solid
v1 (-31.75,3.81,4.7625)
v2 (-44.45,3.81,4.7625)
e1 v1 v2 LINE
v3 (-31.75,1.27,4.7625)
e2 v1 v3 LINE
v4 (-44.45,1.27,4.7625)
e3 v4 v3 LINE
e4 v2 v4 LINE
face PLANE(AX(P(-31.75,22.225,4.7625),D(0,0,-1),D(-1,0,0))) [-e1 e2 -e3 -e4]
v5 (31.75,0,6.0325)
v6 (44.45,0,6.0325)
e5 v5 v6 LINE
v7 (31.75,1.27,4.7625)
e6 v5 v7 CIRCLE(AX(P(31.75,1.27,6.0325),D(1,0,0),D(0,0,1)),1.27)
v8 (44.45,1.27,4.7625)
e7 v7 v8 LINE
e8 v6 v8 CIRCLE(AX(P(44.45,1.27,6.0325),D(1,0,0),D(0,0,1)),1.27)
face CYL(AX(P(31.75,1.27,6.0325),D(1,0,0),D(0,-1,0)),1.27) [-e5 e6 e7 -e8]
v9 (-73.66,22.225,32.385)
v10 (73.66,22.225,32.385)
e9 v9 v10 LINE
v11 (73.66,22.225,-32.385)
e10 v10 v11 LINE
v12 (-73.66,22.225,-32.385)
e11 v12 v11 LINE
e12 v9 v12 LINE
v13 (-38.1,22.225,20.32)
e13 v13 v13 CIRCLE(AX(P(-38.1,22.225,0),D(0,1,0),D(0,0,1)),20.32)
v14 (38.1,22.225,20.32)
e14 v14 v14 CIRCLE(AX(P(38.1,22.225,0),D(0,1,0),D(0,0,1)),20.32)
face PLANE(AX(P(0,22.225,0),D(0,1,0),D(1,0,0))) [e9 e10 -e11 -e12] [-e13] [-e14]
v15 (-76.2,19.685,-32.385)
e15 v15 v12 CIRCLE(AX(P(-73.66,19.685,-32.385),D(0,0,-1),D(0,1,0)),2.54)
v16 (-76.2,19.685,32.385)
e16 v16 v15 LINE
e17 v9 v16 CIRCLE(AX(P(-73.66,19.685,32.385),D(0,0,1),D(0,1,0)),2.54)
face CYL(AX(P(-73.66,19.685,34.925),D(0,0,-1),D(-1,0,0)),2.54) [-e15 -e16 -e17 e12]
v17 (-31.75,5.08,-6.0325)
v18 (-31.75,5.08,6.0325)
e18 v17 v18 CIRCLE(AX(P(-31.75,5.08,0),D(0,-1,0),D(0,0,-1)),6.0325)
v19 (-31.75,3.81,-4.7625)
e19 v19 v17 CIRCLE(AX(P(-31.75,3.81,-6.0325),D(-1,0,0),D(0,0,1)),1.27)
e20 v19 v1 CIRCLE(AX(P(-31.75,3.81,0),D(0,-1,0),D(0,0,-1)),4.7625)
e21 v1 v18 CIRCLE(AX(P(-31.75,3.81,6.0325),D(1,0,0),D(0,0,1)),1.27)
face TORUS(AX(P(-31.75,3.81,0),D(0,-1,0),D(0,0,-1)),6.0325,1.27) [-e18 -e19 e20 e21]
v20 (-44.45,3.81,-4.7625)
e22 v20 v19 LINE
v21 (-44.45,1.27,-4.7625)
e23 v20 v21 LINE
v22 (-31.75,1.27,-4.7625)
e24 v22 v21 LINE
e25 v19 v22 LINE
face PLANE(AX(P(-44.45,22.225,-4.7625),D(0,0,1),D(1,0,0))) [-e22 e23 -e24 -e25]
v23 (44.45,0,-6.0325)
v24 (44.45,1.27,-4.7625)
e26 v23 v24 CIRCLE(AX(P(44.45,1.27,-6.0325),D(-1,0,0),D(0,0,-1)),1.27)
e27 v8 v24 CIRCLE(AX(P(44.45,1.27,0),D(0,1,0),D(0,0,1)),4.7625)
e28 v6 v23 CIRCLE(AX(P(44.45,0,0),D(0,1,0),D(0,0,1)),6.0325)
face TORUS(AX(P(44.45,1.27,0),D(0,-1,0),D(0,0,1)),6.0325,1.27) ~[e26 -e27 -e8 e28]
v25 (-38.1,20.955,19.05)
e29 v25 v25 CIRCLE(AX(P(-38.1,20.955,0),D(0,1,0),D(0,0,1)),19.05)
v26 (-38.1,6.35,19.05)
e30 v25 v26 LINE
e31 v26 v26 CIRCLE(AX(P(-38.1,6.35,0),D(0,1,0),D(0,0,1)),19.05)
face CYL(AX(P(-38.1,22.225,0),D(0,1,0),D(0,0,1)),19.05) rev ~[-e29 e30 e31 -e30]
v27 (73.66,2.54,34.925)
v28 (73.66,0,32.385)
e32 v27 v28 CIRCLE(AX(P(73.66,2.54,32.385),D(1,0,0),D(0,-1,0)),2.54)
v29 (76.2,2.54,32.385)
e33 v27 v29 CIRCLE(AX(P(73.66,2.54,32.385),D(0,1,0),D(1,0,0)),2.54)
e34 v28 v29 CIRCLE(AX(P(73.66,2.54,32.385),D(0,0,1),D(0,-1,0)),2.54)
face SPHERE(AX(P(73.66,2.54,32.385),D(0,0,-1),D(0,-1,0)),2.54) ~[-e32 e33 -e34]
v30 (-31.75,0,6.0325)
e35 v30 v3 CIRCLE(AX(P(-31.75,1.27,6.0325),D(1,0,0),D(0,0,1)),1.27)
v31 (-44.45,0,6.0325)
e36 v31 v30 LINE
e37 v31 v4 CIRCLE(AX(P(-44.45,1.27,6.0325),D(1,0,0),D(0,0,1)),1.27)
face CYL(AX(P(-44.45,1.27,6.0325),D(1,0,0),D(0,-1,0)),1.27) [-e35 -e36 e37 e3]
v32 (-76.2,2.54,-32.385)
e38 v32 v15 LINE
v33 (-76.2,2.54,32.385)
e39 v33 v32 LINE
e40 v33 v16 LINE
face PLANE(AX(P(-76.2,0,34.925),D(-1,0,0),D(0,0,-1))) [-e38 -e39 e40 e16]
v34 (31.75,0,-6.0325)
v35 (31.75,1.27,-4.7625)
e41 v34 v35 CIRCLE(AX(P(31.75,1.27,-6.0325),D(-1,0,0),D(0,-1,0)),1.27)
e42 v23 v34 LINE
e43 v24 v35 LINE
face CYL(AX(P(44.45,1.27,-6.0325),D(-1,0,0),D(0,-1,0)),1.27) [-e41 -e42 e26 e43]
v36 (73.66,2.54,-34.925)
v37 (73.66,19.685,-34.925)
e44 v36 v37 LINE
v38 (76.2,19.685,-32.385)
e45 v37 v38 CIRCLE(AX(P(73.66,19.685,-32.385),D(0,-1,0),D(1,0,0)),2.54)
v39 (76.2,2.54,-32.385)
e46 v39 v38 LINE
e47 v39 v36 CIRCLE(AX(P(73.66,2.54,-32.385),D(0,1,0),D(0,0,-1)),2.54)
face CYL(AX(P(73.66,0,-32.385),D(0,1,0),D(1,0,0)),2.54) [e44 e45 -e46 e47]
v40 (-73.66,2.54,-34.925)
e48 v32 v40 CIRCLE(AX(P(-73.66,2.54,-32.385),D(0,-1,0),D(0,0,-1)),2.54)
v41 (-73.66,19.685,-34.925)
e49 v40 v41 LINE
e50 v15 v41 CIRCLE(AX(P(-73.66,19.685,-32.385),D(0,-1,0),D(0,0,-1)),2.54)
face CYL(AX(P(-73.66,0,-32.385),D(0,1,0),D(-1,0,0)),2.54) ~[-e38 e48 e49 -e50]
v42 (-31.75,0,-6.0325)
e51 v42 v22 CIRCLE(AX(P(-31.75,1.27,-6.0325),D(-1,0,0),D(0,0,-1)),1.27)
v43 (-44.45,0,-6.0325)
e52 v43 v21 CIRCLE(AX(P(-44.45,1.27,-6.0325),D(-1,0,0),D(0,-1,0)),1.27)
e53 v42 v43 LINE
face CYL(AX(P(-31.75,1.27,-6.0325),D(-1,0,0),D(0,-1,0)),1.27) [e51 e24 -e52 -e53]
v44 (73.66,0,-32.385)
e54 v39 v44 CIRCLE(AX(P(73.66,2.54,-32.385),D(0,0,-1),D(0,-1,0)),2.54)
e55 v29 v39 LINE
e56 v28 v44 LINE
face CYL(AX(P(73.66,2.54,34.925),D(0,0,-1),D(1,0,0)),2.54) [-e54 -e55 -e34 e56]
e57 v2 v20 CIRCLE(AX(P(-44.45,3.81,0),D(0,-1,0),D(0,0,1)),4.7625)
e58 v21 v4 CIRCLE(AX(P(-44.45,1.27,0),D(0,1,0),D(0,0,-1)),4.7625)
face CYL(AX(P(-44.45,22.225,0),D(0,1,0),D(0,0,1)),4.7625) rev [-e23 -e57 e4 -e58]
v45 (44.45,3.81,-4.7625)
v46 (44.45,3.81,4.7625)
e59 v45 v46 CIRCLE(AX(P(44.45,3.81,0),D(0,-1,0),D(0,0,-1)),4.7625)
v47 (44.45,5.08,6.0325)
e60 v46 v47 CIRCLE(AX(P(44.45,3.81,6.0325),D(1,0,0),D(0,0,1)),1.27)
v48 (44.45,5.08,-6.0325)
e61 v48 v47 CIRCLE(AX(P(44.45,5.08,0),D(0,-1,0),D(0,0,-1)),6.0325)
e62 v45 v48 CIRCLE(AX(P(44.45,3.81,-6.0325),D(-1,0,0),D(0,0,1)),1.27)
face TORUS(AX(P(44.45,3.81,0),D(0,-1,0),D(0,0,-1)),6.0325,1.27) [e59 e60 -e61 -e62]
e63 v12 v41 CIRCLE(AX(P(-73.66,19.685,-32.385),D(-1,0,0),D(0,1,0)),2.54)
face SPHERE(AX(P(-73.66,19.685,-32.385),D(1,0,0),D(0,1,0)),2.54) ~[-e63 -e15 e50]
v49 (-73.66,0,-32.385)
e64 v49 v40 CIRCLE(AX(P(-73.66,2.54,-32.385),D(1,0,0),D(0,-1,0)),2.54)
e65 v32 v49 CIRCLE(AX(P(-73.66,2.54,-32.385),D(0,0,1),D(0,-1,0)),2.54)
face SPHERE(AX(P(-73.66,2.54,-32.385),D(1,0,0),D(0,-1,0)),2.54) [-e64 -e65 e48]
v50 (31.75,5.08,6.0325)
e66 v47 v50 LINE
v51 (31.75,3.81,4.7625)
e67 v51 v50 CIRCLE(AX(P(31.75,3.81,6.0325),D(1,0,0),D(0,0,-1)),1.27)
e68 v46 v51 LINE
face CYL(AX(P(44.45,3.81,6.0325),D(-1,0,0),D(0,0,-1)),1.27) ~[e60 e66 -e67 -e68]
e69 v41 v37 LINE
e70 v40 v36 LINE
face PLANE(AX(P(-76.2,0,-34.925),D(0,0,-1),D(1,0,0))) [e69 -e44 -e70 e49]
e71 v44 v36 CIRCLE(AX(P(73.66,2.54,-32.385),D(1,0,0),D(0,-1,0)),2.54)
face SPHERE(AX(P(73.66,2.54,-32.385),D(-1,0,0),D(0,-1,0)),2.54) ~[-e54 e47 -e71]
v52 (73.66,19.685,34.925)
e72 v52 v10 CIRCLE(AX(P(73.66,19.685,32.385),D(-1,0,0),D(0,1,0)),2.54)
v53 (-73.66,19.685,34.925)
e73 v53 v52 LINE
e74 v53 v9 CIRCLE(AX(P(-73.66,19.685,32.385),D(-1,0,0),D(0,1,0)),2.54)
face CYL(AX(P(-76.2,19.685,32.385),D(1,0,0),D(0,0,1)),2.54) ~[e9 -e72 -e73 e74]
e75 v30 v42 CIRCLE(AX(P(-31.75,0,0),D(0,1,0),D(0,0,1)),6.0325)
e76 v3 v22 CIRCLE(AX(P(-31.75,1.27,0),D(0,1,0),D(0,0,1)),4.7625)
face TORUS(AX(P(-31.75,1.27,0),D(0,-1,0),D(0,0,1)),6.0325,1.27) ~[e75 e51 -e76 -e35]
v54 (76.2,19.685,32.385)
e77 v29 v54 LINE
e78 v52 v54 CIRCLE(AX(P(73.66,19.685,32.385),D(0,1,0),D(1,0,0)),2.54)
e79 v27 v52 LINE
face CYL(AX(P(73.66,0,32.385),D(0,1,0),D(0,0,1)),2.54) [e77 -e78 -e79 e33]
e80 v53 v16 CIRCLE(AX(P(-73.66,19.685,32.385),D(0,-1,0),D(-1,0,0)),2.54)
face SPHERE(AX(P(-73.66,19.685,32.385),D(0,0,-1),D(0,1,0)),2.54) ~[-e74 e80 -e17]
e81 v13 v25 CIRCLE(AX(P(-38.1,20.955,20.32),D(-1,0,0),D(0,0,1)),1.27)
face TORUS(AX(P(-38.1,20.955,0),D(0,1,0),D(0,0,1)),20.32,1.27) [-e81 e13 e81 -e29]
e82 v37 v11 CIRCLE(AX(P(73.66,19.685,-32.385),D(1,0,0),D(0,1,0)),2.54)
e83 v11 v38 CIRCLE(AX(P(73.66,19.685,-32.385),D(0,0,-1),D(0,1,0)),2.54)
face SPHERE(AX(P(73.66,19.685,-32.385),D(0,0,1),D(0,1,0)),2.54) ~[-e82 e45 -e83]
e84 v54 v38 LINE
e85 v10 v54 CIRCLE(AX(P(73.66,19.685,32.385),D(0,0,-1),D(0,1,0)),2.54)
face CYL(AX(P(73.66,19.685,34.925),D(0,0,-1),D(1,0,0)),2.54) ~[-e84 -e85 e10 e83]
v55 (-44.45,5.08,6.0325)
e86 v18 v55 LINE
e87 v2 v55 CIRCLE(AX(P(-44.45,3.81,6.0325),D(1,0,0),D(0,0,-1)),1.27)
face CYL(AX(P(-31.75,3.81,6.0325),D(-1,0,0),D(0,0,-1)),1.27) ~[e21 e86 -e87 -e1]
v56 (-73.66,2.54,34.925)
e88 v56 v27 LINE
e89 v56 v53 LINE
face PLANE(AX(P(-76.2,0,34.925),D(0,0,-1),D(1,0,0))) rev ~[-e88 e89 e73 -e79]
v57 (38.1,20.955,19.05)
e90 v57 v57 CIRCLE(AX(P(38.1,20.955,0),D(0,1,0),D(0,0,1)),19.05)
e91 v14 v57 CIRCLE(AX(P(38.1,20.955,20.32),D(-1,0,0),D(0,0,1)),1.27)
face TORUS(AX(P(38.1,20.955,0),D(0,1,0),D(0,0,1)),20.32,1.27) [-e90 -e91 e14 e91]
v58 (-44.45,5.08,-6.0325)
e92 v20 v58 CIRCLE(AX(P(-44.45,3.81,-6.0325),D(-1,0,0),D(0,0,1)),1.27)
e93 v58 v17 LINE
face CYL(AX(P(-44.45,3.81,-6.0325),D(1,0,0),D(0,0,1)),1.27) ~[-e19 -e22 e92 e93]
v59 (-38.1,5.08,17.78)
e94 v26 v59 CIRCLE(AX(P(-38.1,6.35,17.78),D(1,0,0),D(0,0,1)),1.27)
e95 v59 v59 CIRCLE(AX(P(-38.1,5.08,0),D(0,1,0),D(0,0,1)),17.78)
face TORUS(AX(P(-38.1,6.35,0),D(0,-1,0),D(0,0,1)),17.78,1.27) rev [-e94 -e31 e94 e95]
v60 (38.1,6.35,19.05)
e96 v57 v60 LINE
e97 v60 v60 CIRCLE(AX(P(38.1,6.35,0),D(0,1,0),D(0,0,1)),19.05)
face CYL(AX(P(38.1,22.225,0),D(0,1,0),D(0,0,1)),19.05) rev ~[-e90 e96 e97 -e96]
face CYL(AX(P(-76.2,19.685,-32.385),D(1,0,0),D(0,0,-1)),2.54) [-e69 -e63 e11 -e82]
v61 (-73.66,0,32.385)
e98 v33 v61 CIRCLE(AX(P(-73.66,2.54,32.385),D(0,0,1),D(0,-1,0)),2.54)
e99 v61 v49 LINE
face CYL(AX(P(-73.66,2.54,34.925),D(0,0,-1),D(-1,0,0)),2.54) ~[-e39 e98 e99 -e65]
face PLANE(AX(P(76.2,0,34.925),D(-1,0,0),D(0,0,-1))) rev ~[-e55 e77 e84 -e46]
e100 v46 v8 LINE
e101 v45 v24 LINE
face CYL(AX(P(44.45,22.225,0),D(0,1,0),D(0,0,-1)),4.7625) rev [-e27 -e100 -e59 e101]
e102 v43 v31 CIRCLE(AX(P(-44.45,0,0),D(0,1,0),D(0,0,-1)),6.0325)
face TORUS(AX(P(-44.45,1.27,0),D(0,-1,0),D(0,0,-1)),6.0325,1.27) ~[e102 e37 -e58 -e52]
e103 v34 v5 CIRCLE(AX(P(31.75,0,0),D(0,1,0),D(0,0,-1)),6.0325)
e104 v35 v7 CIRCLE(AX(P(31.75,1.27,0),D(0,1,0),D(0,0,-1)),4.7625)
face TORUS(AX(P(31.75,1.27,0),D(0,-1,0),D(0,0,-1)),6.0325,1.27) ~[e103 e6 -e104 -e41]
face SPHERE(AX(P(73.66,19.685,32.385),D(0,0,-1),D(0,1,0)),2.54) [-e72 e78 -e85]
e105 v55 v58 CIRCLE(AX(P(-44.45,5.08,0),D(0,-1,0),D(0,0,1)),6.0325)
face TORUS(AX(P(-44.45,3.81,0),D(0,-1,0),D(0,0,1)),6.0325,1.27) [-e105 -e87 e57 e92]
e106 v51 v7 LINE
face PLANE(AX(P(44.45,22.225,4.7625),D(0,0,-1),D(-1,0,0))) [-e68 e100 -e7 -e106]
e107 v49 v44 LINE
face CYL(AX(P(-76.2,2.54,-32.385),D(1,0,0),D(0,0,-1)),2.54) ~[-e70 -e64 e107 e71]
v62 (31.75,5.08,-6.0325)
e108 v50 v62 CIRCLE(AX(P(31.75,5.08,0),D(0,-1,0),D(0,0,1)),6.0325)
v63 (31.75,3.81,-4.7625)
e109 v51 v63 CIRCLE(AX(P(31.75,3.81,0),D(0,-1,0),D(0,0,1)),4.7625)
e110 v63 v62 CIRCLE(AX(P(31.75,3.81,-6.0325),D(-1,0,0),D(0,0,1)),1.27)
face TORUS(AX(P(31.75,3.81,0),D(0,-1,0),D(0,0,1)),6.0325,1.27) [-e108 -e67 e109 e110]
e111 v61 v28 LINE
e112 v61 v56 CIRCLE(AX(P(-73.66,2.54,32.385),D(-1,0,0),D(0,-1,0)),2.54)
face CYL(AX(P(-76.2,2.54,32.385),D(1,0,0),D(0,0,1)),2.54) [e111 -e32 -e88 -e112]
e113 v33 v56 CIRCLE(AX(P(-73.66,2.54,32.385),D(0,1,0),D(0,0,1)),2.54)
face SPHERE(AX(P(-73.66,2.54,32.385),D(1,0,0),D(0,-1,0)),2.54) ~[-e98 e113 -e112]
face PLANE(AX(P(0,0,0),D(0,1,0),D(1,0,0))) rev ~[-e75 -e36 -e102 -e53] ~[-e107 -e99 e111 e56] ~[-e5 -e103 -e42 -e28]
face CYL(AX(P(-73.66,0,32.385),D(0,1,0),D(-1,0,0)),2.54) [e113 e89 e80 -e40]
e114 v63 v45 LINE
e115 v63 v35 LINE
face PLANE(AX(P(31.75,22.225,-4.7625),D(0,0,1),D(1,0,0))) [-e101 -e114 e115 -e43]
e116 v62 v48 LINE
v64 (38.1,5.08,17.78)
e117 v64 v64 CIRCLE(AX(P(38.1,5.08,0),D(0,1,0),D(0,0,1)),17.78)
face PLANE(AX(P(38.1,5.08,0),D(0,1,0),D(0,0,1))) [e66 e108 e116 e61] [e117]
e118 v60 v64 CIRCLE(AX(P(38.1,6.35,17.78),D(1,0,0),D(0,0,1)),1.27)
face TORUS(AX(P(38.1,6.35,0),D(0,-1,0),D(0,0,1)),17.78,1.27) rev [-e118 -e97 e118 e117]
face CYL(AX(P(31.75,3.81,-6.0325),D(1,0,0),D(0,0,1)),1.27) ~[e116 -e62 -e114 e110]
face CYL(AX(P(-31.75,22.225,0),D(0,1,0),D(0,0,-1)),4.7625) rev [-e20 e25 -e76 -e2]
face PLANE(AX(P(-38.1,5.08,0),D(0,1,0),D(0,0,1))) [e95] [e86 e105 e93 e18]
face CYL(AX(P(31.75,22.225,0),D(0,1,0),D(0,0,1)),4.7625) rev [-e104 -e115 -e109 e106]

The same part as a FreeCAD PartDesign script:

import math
import FreeCAD as App
import Part
import Sketcher

V = App.Vector
Q = App.Units.Quantity


def edges_at(feature, points):
    """Names of the edges that pass closest to the given points."""
    edges = feature.Shape.Edges
    near = lambda p: min(range(len(edges)), key=lambda i: edges[i].distToShape(Part.Vertex(*p))[0])
    return sorted({f"Edge{near(p) + 1}" for p in points})

doc = App.newDocument("Part")
body = doc.addObject("PartDesign::Body", "Body")

# Sketch on XZ plane
sketch1 = body.newObject("Sketcher::SketchObject", "Sketch")
sketch1.AttachmentSupport = (doc.getObject("XZ_Plane"), [""])
sketch1.MapMode = "FlatFace"
sketch1.addGeometry([
    Part.LineSegment(V(-76.2, -34.925, 0), V(-76.2, 34.925, 0)),
    Part.LineSegment(V(-76.2, 34.925, 0), V(76.2, 34.925, 0)),
    Part.LineSegment(V(76.2, 34.925, 0), V(76.2, -34.925, 0)),
    Part.LineSegment(V(76.2, -34.925, 0), V(-76.2, -34.925, 0)),
], False)
sketch1.addConstraint([
    Sketcher.Constraint("Coincident", 0, 2, 1, 1),
    Sketcher.Constraint("Coincident", 1, 2, 2, 1),
    Sketcher.Constraint("Coincident", 2, 2, 3, 1),
    Sketcher.Constraint("Coincident", 3, 2, 0, 1),
    Sketcher.Constraint("Vertical", 0),
    Sketcher.Constraint("Horizontal", 1),
    Sketcher.Constraint("Vertical", 2),
    Sketcher.Constraint("Horizontal", 3),
    Sketcher.Constraint("Symmetric", 0, 2, 2, 2, -1, 1),
    Sketcher.Constraint("DistanceX", 1, 1, 1, 2, Q("6 in")),
    Sketcher.Constraint("DistanceY", 0, 1, 0, 2, Q("2.75 in")),
])
pad1 = body.newObject("PartDesign::Pad", "Pad")
pad1.Profile = sketch1
pad1.Length = Q("0.875 in")
pad1.Reversed = True
doc.recompute()

fillet = body.newObject("PartDesign::Fillet", "Fillet")
fillet.Base = (pad1, ["Edge1"])
fillet.UseAllEdges = True
fillet.Radius = Q("0.1 in")

# Sketch on XZ plane
sketch2 = body.newObject("Sketcher::SketchObject", "Sketch001")
sketch2.AttachmentSupport = (doc.getObject("XZ_Plane"), [""])
sketch2.MapMode = "FlatFace"
sketch2.AttachmentOffset = App.Placement(V(0, 0, -0.875 * 25.4), App.Rotation())
sketch2.addGeometry([
    Part.Circle(V(-38.1, 0, 0), V(0, 0, 1), 19.05),
    Part.Circle(V(38.1, 0, 0), V(0, 0, 1), 19.05),
], False)
sketch2.addConstraint([
    Sketcher.Constraint("Equal", 0, 1),
    Sketcher.Constraint("Symmetric", 0, 3, 1, 3, -1, 1),
    Sketcher.Constraint("PointOnObject", 0, 3, -1),
    Sketcher.Constraint("Diameter", 0, Q("1.5 in")),
    Sketcher.Constraint("DistanceX", 0, 3, 1, 3, Q("3 in")),
])
pocket1 = body.newObject("PartDesign::Pocket", "Pocket")
pocket1.Profile = sketch2
pocket1.Length = Q("0.675 in")
pocket1.Reversed = True

# Sketch on XZ plane
sketch3 = body.newObject("Sketcher::SketchObject", "Sketch002")
sketch3.AttachmentSupport = (doc.getObject("XZ_Plane"), [""])
sketch3.MapMode = "FlatFace"
sketch3.AttachmentOffset = App.Placement(V(0, 0, -0.875 * 25.4), App.Rotation())
sketch3.addGeometry([
    Part.LineSegment(V(-44.45, 4.7625, 0), V(-31.75, 4.7625, 0)),  # 0
    Part.ArcOfCircle(Part.Circle(V(-31.75, 0, 0), V(0, 0, 1), 4.7625), math.radians(-90), math.radians(90)),  # 1
    Part.LineSegment(V(-31.75, -4.7625, 0), V(-44.45, -4.7625, 0)),  # 2
    Part.ArcOfCircle(Part.Circle(V(-44.45, 0, 0), V(0, 0, 1), 4.7625), math.radians(90), math.radians(270)),  # 3
    Part.LineSegment(V(31.75, 4.7625, 0), V(44.45, 4.7625, 0)),  # 4
    Part.ArcOfCircle(Part.Circle(V(44.45, 0, 0), V(0, 0, 1), 4.7625), math.radians(-90), math.radians(90)),  # 5
    Part.LineSegment(V(44.45, -4.7625, 0), V(31.75, -4.7625, 0)),  # 6
    Part.ArcOfCircle(Part.Circle(V(31.75, 0, 0), V(0, 0, 1), 4.7625), math.radians(90), math.radians(270)),  # 7
], False)
sketch3.addConstraint([
    Sketcher.Constraint("Tangent", 0, 2, 1, 2),
    Sketcher.Constraint("Tangent", 1, 1, 2, 1),
    Sketcher.Constraint("Tangent", 2, 2, 3, 2),
    Sketcher.Constraint("Tangent", 3, 1, 0, 1),
    Sketcher.Constraint("Tangent", 4, 2, 5, 2),
    Sketcher.Constraint("Tangent", 5, 1, 6, 1),
    Sketcher.Constraint("Tangent", 6, 2, 7, 2),
    Sketcher.Constraint("Tangent", 7, 1, 4, 1),
    Sketcher.Constraint("Horizontal", 0),
    Sketcher.Constraint("Horizontal", 2),
    Sketcher.Constraint("Horizontal", 4),
    Sketcher.Constraint("Horizontal", 6),
    Sketcher.Constraint("Equal", 3, 5),
    Sketcher.Constraint("Symmetric", 3, 3, 5, 3, -1, 1),
    Sketcher.Constraint("Symmetric", 1, 3, 7, 3, -2),
    Sketcher.Constraint("DistanceX", 0, 1, 0, 2, Q("0.5 in")),
    Sketcher.Constraint("Radius", 1, Q("0.1875 in")),
    Sketcher.Constraint("DistanceX", 1, 3, 5, 3, Q("3 in")),
])
pocket2 = body.newObject("PartDesign::Pocket", "Pocket001")
pocket2.Profile = sketch3
pocket2.Type = "ThroughAll"
pocket2.Reversed = True
doc.recompute()

fillet2 = body.newObject("PartDesign::Fillet", "Fillet001")
fillet2.Base = (pocket2, edges_at(pocket2, [
    (-38.1, 22.225, -19.05),
    (-38.1, 5.08, -19.05),
    (38.1, 22.225, -19.05),
    (38.1, 5.08, -19.05),
    (-38.1, 5.08, -4.763),
    (-49.212, 5.08, 0),
    (-38.1, 5.08, 4.763),
    (-26.988, 5.08, 0),
    (-26.988, 0, 0),
    (-38.1, 0, 4.763),
    (-49.212, 0, 0),
    (-38.1, 0, -4.763),
    (38.1, 5.08, -4.763),
    (26.988, 5.08, 0),
    (38.1, 5.08, 4.763),
    (49.212, 5.08, 0),
    (49.212, 0, 0),
    (38.1, 0, 4.763),
    (26.988, 0, 0),
    (38.1, 0, -4.763),
]))
fillet2.Radius = Q("0.05 in")

doc.recompute()
